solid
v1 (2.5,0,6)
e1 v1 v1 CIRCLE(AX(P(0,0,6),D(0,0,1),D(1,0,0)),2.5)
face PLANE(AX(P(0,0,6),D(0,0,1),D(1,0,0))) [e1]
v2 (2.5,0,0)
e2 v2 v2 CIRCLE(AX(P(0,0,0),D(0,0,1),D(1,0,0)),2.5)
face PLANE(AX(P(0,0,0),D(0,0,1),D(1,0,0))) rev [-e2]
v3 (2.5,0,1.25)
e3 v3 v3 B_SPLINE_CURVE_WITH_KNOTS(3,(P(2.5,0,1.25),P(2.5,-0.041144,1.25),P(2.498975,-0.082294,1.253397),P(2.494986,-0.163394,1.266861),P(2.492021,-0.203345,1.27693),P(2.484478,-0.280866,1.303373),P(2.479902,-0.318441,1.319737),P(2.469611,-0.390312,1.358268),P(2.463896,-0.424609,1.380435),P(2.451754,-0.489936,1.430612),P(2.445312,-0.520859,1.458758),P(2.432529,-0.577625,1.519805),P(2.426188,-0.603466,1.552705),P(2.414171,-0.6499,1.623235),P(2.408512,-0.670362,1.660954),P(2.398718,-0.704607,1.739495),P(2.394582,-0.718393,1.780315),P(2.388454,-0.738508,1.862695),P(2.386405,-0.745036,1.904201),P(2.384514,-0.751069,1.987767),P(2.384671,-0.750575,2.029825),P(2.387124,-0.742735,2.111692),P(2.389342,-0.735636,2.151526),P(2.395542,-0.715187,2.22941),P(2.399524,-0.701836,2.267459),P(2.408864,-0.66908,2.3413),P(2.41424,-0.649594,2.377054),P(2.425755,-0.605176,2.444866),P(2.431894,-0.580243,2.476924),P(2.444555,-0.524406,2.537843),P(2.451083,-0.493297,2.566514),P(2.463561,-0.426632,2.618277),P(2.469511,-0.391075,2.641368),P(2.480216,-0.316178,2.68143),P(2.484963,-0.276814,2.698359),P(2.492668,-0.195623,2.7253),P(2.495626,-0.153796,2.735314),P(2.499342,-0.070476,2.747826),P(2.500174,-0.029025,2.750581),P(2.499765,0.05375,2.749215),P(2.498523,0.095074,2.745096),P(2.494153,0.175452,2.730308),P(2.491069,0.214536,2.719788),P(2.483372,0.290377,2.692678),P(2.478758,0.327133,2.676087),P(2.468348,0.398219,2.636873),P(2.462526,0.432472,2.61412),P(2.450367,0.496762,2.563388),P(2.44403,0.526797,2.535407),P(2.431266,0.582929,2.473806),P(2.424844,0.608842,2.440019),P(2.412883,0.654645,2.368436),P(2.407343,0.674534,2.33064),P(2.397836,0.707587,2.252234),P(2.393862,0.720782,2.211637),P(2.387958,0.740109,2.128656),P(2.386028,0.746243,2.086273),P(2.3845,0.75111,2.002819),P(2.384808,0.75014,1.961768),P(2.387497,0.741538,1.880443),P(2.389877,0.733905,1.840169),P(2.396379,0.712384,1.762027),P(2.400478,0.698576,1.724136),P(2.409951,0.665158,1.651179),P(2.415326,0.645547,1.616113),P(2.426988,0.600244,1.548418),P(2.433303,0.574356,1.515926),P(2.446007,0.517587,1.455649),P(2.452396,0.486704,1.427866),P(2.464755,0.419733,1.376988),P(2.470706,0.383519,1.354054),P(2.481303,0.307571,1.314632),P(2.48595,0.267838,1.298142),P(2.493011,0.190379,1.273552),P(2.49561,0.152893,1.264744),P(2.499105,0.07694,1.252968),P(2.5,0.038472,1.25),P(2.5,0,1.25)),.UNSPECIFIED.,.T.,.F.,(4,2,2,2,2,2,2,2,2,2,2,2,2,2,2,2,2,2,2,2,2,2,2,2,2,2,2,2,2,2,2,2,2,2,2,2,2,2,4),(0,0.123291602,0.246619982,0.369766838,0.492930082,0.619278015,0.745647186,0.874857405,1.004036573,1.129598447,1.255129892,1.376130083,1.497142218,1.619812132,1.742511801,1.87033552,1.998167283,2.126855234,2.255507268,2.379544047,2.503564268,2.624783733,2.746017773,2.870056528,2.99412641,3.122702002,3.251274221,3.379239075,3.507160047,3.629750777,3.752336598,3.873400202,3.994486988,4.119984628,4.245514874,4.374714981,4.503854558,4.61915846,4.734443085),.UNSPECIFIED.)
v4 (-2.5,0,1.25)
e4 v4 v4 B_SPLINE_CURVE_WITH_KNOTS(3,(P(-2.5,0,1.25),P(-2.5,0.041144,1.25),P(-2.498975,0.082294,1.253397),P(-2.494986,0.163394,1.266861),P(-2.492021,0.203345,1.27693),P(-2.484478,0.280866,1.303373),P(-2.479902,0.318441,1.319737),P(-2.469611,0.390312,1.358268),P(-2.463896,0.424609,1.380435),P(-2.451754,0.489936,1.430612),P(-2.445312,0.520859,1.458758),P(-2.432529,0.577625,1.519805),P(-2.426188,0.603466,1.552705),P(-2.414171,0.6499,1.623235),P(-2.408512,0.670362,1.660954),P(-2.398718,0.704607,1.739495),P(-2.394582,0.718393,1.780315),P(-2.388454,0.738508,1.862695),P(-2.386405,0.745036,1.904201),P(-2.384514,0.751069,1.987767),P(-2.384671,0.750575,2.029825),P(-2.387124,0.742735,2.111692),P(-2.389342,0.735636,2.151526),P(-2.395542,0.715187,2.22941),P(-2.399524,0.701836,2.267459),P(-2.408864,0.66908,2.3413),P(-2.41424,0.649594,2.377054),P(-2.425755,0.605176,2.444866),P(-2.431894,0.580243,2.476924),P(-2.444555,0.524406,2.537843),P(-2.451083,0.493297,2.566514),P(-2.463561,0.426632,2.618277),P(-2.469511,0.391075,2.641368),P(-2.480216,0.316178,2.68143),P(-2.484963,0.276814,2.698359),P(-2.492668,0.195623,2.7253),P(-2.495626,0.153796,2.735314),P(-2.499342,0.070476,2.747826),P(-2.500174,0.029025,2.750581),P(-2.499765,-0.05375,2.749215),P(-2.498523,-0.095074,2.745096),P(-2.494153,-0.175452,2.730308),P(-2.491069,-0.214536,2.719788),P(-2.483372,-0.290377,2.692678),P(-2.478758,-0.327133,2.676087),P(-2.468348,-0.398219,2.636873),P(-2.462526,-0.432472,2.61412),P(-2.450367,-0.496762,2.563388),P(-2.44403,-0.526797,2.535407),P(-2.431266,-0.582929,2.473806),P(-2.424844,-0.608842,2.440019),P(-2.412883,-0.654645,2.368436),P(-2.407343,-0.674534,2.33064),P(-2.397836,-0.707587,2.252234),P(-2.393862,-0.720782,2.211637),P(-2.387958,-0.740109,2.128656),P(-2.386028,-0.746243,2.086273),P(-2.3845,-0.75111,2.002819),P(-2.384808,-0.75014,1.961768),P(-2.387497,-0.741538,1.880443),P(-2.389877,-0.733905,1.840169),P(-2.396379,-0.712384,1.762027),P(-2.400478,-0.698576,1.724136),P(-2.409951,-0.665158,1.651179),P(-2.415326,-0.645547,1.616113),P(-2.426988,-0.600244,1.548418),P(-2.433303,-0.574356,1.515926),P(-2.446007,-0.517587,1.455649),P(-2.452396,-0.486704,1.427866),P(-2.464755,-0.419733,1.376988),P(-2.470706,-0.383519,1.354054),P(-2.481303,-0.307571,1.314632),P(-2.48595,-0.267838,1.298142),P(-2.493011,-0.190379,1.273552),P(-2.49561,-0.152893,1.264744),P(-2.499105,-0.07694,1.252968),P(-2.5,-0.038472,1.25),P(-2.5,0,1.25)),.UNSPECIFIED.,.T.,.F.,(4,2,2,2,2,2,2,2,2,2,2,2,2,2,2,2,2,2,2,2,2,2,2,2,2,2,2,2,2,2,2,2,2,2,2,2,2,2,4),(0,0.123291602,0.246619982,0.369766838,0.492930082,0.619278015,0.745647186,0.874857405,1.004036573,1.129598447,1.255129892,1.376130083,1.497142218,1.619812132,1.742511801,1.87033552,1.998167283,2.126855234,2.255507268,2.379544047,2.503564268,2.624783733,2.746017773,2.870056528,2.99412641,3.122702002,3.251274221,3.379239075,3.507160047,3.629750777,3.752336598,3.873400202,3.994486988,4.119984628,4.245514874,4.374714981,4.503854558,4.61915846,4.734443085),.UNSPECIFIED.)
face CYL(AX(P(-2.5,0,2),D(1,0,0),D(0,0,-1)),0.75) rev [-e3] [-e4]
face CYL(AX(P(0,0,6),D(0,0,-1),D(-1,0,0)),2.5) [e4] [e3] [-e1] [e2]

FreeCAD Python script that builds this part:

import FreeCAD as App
import Part
import Sketcher

doc = App.newDocument("Part")
body = doc.addObject("PartDesign::Body", "Body")

# Sketch on XY plane
sketch1 = body.newObject("Sketcher::SketchObject", "Sketch")
sketch1.AttachmentSupport = (doc.getObject("XY_Plane"), [""])
sketch1.MapMode = "FlatFace"
sketch1.addGeometry(Part.Circle(App.Vector(0, 0, 0), App.Vector(0, 0, 1), 2.5), False)
sketch1.addConstraint([
    Sketcher.Constraint("Coincident", 0, 3, -1, 1),
    Sketcher.Constraint("Diameter", 0, 5.0),
])
pad1 = body.newObject("PartDesign::Pad", "Pad")
pad1.Profile = sketch1
pad1.Length = 6

# Sketch on YZ plane
sketch2 = body.newObject("Sketcher::SketchObject", "Sketch001")
sketch2.AttachmentSupport = (doc.getObject("YZ_Plane"), [""])
sketch2.MapMode = "FlatFace"
sketch2.addGeometry(Part.Circle(App.Vector(0, 2, 0), App.Vector(0, 0, 1), 0.75), False)
sketch2.addConstraint([
    Sketcher.Constraint("PointOnObject", 0, 3, -2),
    Sketcher.Constraint("Diameter", 0, 1.5),
    Sketcher.Constraint("DistanceY", -1, 1, 0, 3, 2.0),
])
pocket1 = body.newObject("PartDesign::Pocket", "Pocket")
pocket1.Profile = sketch2
pocket1.Type = "ThroughAll"
pocket1.Midplane = True

doc.recompute()
